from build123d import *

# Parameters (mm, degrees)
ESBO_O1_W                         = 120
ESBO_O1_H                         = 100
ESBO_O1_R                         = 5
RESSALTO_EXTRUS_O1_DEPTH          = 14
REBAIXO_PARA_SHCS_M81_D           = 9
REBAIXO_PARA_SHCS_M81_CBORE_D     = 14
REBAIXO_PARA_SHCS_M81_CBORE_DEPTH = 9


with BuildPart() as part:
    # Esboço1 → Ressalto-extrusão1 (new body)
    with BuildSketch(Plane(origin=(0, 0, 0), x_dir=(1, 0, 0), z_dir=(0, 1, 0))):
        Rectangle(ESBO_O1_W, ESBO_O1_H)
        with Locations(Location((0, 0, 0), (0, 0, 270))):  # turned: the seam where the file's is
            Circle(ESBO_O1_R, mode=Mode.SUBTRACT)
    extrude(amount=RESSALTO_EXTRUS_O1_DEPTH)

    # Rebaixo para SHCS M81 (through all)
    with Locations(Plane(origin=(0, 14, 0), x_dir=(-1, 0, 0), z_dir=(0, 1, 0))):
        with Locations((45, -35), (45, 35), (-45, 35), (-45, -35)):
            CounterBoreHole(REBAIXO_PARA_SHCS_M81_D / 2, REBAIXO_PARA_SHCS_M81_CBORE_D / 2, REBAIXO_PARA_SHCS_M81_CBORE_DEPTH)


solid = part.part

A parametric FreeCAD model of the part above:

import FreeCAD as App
import Part
import Sketcher

V = App.Vector

doc = App.newDocument("Part")
params = doc.addObject("Spreadsheet::Sheet", "Params")
for row, (alias, value) in enumerate([
    ("sketch1_diameter", "10 mm"),
    ("sketch1_width", "120 mm"),
    ("sketch1_height", "100 mm"),
    ("pad1_length", "14 mm"),
    ("sketch2_diameter", "9 mm"),
    ("hole_diameter", "9 mm"),
    ("hole_cbore_diameter", "14 mm"),
    ("hole_cbore_depth", "9 mm"),
], start=1):
    params.set(f"A{row}", alias)
    params.set(f"B{row}", "=" + value)
    params.setAlias(f"B{row}", alias)

body = doc.addObject("PartDesign::Body", "Body")

sketch1 = body.newObject("Sketcher::SketchObject", "Sketch")
sketch1.AttachmentSupport = (doc.getObject("XZ_Plane"), [""])
sketch1.MapMode = "FlatFace"
sketch1.addGeometry([
    Part.LineSegment(V(-60, -50, 0), V(-60, 50, 0)),
    Part.LineSegment(V(-60, 50, 0), V(60, 50, 0)),
    Part.LineSegment(V(60, 50, 0), V(60, -50, 0)),
    Part.LineSegment(V(60, -50, 0), V(-60, -50, 0)),
    Part.Circle(V(0, 0, 0), V(0, 0, 1), 5),
], False)
sketch1.addConstraint([
    Sketcher.Constraint("Coincident", 0, 2, 1, 1),
    Sketcher.Constraint("Coincident", 1, 2, 2, 1),
    Sketcher.Constraint("Coincident", 2, 2, 3, 1),
    Sketcher.Constraint("Coincident", 3, 2, 0, 1),
    Sketcher.Constraint("Vertical", 0),
    Sketcher.Constraint("Horizontal", 1),
    Sketcher.Constraint("Vertical", 2),
    Sketcher.Constraint("Horizontal", 3),
    Sketcher.Constraint("Coincident", 4, 3, -1, 1),
    Sketcher.Constraint("Symmetric", 0, 2, 2, 2, -1, 1),
    Sketcher.Constraint("Diameter", 4, 10.0),
    Sketcher.Constraint("DistanceX", 1, 1, 1, 2, 120.0),
    Sketcher.Constraint("DistanceY", 0, 1, 0, 2, 100.0),
])
sketch1.setExpression("Constraints[10]", "Params.sketch1_diameter")
sketch1.setExpression("Constraints[11]", "Params.sketch1_width")
sketch1.setExpression("Constraints[12]", "Params.sketch1_height")
pad1 = body.newObject("PartDesign::Pad", "Pad")
pad1.Profile = sketch1
pad1.setExpression("Length", "Params.pad1_length")
pad1.Reversed = True

sketch2 = body.newObject("Sketcher::SketchObject", "Sketch001")
sketch2.AttachmentSupport = (doc.getObject("XZ_Plane"), [""])
sketch2.MapMode = "FlatFace"
sketch2.AttachmentOffset = App.Placement(V(0, 0, -14), App.Rotation())
sketch2.addGeometry([
    Part.Circle(V(-45, -35, 0), V(0, 0, 1), 4.5),
    Part.Circle(V(-45, 35, 0), V(0, 0, 1), 4.5),
    Part.Circle(V(45, 35, 0), V(0, 0, 1), 4.5),
    Part.Circle(V(45, -35, 0), V(0, 0, 1), 4.5),
], False)
sketch2.addConstraint([
    Sketcher.Constraint("Equal", 0, 1),
    Sketcher.Constraint("Equal", 1, 2),
    Sketcher.Constraint("Equal", 2, 3),
    Sketcher.Constraint("Symmetric", 0, 3, 2, 3, -1, 1),
    Sketcher.Constraint("Symmetric", 1, 3, 3, 3, -1, 1),
    Sketcher.Constraint("Symmetric", 1, 3, 2, 3, -2),
    Sketcher.Constraint("Diameter", 0, 9.0),
    Sketcher.Constraint("DistanceX", 0, 3, -1, 1, 45.0),
    Sketcher.Constraint("DistanceY", 0, 3, -1, 1, 35.0),
])
sketch2.setExpression("Constraints[6]", "Params.sketch2_diameter")
doc.recompute()
hole = body.newObject("PartDesign::Hole", "Hole")
hole.Profile = sketch2
hole.ThreadType = "None"
hole.setExpression("Diameter", "Params.hole_diameter")
hole.DepthType = "ThroughAll"
hole.HoleCutType = "Counterbore"
hole.setExpression("HoleCutDiameter", "Params.hole_cbore_diameter")
hole.setExpression("HoleCutDepth", "Params.hole_cbore_depth")
hole.Reversed = True

doc.recompute()
